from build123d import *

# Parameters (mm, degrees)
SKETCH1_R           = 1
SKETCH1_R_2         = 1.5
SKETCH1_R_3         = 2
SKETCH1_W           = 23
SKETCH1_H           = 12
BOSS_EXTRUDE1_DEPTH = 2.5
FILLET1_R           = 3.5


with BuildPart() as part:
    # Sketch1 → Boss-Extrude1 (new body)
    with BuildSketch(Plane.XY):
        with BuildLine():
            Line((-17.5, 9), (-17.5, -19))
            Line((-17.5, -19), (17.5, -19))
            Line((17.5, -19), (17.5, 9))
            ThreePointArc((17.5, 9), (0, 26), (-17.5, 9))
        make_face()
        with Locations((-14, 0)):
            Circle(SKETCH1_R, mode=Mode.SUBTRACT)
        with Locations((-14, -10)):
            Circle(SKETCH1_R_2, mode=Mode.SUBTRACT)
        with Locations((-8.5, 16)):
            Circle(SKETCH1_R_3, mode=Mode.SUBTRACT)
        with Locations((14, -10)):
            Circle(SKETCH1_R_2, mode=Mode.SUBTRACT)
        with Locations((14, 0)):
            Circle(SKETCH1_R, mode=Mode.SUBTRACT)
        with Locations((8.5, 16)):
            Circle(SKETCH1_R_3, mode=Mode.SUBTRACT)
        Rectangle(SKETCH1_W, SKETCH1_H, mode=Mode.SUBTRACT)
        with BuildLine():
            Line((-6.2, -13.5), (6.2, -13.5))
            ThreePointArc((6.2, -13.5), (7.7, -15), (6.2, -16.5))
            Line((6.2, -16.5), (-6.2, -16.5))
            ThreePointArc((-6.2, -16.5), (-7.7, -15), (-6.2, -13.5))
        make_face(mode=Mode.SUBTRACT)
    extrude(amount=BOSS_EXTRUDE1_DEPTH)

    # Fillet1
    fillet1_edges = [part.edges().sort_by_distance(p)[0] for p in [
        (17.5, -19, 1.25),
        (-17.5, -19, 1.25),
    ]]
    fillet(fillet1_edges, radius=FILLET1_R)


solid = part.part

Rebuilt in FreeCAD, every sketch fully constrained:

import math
import FreeCAD as App
import Part
import Sketcher
Q = App.Units.Quantity


def edges_at(feature, points):
    """Names of the edges that pass closest to the given points."""
    edges = feature.Shape.Edges
    near = lambda p: min(range(len(edges)), key=lambda i: edges[i].distToShape(Part.Vertex(*p))[0])
    return sorted({f"Edge{near(p) + 1}" for p in points})

doc = App.newDocument("Part")
body = doc.addObject("PartDesign::Body", "Body")

# Sketch on XY plane
sketch1 = body.newObject("Sketcher::SketchObject", "Sketch")
sketch1.AttachmentSupport = (doc.getObject("XY_Plane"), [""])
sketch1.MapMode = "FlatFace"
sketch1.addGeometry([
    Part.LineSegment(App.Vector(-17.5, 9, 0), App.Vector(-17.5, -19, 0)),  # 0
    Part.LineSegment(App.Vector(-17.5, -19, 0), App.Vector(17.5, -19, 0)),  # 1
    Part.LineSegment(App.Vector(17.5, -19, 0), App.Vector(17.5, 9, 0)),  # 2
    Part.ArcOfCircle(Part.Circle(App.Vector(0, 8.5, 0), App.Vector(0, 0, 1), 17.5), math.radians(2), math.radians(178)),  # 3
    Part.Circle(App.Vector(-14, -10, 0), App.Vector(0, 0, 1), 1.5),  # 4
    Part.Circle(App.Vector(-14, 0, 0), App.Vector(0, 0, 1), 1),  # 5
    Part.ArcOfCircle(Part.Circle(App.Vector(-6.2, -15, 0), App.Vector(0, 0, 1), 1.5), math.radians(90), math.radians(270)),  # 6
    Part.LineSegment(App.Vector(-6.2, -13.5, 0), App.Vector(6.2, -13.5, 0)),  # 7
    Part.ArcOfCircle(Part.Circle(App.Vector(6.2, -15, 0), App.Vector(0, 0, 1), 1.5), math.radians(-90), math.radians(90)),  # 8
    Part.LineSegment(App.Vector(6.2, -16.5, 0), App.Vector(-6.2, -16.5, 0)),  # 9
    Part.Circle(App.Vector(14, -10, 0), App.Vector(0, 0, 1), 1.5),  # 10
    Part.LineSegment(App.Vector(11.5, -6, 0), App.Vector(-11.5, -6, 0)),  # 11
    Part.LineSegment(App.Vector(-11.5, -6, 0), App.Vector(-11.5, 6, 0)),  # 12
    Part.LineSegment(App.Vector(-11.5, 6, 0), App.Vector(11.5, 6, 0)),  # 13
    Part.LineSegment(App.Vector(11.5, 6, 0), App.Vector(11.5, -6, 0)),  # 14
    Part.Circle(App.Vector(14, 0, 0), App.Vector(0, 0, 1), 1),  # 15
    Part.Circle(App.Vector(-8.5, 16, 0), App.Vector(0, 0, 1), 2),  # 16
    Part.Circle(App.Vector(8.5, 16, 0), App.Vector(0, 0, 1), 2),  # 17
], False)
sketch1.addConstraint([
    Sketcher.Constraint("Coincident", 0, 2, 1, 1),
    Sketcher.Constraint("Coincident", 1, 2, 2, 1),
    Sketcher.Constraint("Coincident", 2, 2, 3, 1),
    Sketcher.Constraint("Coincident", 3, 2, 0, 1),
    Sketcher.Constraint("Tangent", 6, 1, 7, 1),
    Sketcher.Constraint("Tangent", 7, 2, 8, 2),
    Sketcher.Constraint("Tangent", 8, 1, 9, 1),
    Sketcher.Constraint("Tangent", 9, 2, 6, 2),
    Sketcher.Constraint("Coincident", 11, 2, 12, 1),
    Sketcher.Constraint("Coincident", 12, 2, 13, 1),
    Sketcher.Constraint("Coincident", 13, 2, 14, 1),
    Sketcher.Constraint("Coincident", 14, 2, 11, 1),
    Sketcher.Constraint("Vertical", 0),
    Sketcher.Constraint("Horizontal", 1),
    Sketcher.Constraint("Vertical", 2),
    Sketcher.Constraint("Horizontal", 7),
    Sketcher.Constraint("Horizontal", 9),
    Sketcher.Constraint("Horizontal", 11),
    Sketcher.Constraint("Vertical", 12),
    Sketcher.Constraint("Horizontal", 13),
    Sketcher.Constraint("Vertical", 14),
    Sketcher.Constraint("Equal", 4, 6),
    Sketcher.Constraint("Equal", 8, 10),
    Sketcher.Constraint("Equal", 5, 15),
    Sketcher.Constraint("Equal", 16, 17),
    Sketcher.Constraint("Symmetric", 5, 3, 15, 3, -1, 1),
    Sketcher.Constraint("Symmetric", 11, 2, 13, 2, -1, 1),
    Sketcher.Constraint("Symmetric", 4, 3, 10, 3, -2),
    Sketcher.Constraint("Symmetric", 16, 3, 17, 3, -2),
    Sketcher.Constraint("Symmetric", 2, 2, 3, 2, -2),
    Sketcher.Constraint("PointOnObject", 5, 3, -1),
    Sketcher.Constraint("Vertical", 4, 3, 5, 3),
    Sketcher.Constraint("Diameter", 4, Q("3 mm")),
    Sketcher.Constraint("Diameter", 5, Q("2 mm")),
    Sketcher.Constraint("Diameter", 16, Q("4 mm")),
    Sketcher.Constraint("DistanceX", 1, 1, 1, 2, Q("35 mm")),
    Sketcher.Constraint("DistanceX", 11, 2, 11, 1, Q("23 mm")),
    Sketcher.Constraint("DistanceY", 0, 2, 0, 1, Q("28 mm")),
    Sketcher.Constraint("DistanceY", 12, 1, 12, 2, Q("12 mm")),
    Sketcher.Constraint("DistanceX", 7, 1, 7, 2, Q("12.4 mm")),
    Sketcher.Constraint("DistanceX", 4, 3, -1, 1, Q("14 mm")),
    Sketcher.Constraint("DistanceY", 4, 3, -1, 1, Q("10 mm")),
    Sketcher.Constraint("DistanceY", 6, 3, -1, 1, Q("15 mm")),
    Sketcher.Constraint("DistanceY", -1, 1, 16, 3, Q("16 mm")),
    Sketcher.Constraint("DistanceY", 0, 2, -1, 1, Q("19 mm")),
    Sketcher.Constraint("DistanceX", 16, 3, 17, 3, Q("17 mm")),
    Sketcher.Constraint("DistanceX", 6, 3, -1, 1, Q("6.2 mm")),
    Sketcher.Constraint("Radius", 3, Q("17.507353 mm")),
])
pad1 = body.newObject("PartDesign::Pad", "Pad")
pad1.Profile = sketch1
pad1.Length = 2.5
doc.recompute()

fillet = body.newObject("PartDesign::Fillet", "Fillet")
fillet.Base = (pad1, edges_at(pad1, [(17.5, -19, 1.25), (-17.5, -19, 1.25)]))
fillet.Radius = 3.5

doc.recompute()
